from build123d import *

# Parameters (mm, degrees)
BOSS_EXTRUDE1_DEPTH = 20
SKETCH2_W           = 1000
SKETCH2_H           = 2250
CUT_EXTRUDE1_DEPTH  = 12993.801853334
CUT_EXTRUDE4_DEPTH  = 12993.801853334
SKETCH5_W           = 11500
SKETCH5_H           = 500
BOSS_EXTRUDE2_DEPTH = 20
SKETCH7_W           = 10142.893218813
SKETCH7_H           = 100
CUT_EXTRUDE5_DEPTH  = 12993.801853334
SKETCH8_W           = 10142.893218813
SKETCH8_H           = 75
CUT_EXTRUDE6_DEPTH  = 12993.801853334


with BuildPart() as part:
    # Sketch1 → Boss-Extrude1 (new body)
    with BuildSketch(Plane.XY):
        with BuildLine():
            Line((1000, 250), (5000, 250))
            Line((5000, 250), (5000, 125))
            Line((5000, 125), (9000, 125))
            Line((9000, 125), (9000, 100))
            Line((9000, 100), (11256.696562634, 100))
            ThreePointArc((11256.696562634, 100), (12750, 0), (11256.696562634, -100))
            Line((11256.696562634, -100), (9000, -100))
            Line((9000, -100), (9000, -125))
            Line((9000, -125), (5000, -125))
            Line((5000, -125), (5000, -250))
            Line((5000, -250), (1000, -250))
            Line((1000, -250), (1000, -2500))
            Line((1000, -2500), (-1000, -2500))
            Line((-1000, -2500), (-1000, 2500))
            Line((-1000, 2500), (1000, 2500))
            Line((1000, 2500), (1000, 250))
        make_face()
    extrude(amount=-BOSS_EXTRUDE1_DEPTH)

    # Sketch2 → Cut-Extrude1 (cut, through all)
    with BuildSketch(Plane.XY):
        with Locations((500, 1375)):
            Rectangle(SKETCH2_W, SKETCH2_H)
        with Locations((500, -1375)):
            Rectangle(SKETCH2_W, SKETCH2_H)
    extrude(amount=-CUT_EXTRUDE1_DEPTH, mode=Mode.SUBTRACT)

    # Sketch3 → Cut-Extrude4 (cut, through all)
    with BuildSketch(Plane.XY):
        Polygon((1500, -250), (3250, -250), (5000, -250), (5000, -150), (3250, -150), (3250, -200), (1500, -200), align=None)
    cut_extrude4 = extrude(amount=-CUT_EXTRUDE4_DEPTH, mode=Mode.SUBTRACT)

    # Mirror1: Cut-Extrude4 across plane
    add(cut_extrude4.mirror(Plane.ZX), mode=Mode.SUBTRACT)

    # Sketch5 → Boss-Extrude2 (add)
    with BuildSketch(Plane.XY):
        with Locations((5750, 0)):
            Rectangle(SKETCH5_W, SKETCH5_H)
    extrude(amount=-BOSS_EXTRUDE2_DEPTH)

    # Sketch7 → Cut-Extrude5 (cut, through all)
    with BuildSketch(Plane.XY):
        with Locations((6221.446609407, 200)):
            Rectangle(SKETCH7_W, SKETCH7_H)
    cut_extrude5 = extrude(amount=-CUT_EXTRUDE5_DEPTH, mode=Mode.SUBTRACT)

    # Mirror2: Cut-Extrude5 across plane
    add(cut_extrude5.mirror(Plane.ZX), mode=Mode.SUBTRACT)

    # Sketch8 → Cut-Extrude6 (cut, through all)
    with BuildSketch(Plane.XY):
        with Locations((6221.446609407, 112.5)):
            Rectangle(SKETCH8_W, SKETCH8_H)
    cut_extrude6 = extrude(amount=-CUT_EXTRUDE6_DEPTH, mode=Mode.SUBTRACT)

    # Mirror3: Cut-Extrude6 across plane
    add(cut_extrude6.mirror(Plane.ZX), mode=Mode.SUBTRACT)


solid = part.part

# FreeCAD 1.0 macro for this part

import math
import FreeCAD as App
import Part
import Sketcher
from FreeCAD import Vector
Q = App.Units.Quantity


def add_polygon(sketch, points):
    """Adds a closed chain of lines whose ends are joined by coincident constraints."""
    first, n = sketch.GeometryCount, len(points)
    for a, b in zip(points, points[1:] + points[:1]):
        sketch.addGeometry(Part.LineSegment(App.Vector(*a, 0), App.Vector(*b, 0)), False)
    for i in range(n):
        sketch.addConstraint(Sketcher.Constraint("Coincident", first + i, 2, first + (i + 1) % n, 1))

doc = App.newDocument("Part")
params = doc.addObject("Spreadsheet::Sheet", "Params")
for row, (alias, value) in enumerate([
    ("sketch1_radius", "750 mm"),
    ("sketch1_width", "4000 mm"),
    ("sketch1_width2", "2000 mm"),
    ("sketch1_height", "2250 mm"),
    ("sketch1_height2", "5000 mm"),
    ("pad1_length", "20 mm"),
    ("sketch2_width", "1000 mm"),
    ("sketch2_height", "2250 mm"),
    ("sketch3_width", "3500 mm"),
    ("sketch3_height", "100 mm"),
    ("sketch4_width", "11500 mm"),
    ("sketch4_height", "500 mm"),
    ("pad2_length", "20 mm"),
    ("sketch5_height", "100 mm"),
    ("sketch6_height", "75 mm"),
], start=1):
    params.set(f"A{row}", alias)
    params.set(f"B{row}", "=" + value)
    params.setAlias(f"B{row}", alias)

body = doc.addObject("PartDesign::Body", "Body")

# Sketch on XY plane
sketch1 = body.newObject("Sketcher::SketchObject", "Sketch")
sketch1.AttachmentSupport = (doc.getObject("XY_Plane"), [""])
sketch1.MapMode = "FlatFace"
sketch1.addGeometry(Part.LineSegment(Vector(5000, 250, 0), Vector(1000, 250, 0)), False)
sketch1.addGeometry(Part.LineSegment(Vector(1000, 250, 0), Vector(1000, 2500, 0)), False)
sketch1.addGeometry(Part.LineSegment(Vector(1000, 2500, 0), Vector(-1000, 2500, 0)), False)
sketch1.addGeometry(Part.LineSegment(Vector(-1000, 2500, 0), Vector(-1000, -2500, 0)), False)
sketch1.addGeometry(Part.LineSegment(Vector(-1000, -2500, 0), Vector(1000, -2500, 0)), False)
sketch1.addGeometry(Part.LineSegment(Vector(1000, -2500, 0), Vector(1000, -250, 0)), False)
sketch1.addGeometry(Part.LineSegment(Vector(1000, -250, 0), Vector(5000, -250, 0)), False)
sketch1.addGeometry(Part.LineSegment(Vector(5000, -250, 0), Vector(5000, -125, 0)), False)
sketch1.addGeometry(Part.LineSegment(Vector(5000, -125, 0), Vector(9000, -125, 0)), False)
sketch1.addGeometry(Part.LineSegment(Vector(9000, -125, 0), Vector(9000, -100, 0)), False)
sketch1.addGeometry(Part.LineSegment(Vector(9000, -100, 0), Vector(11256.696563, -100, 0)), False)
sketch1.addGeometry(Part.ArcOfCircle(Part.Circle(Vector(12000, 0, 0), Vector(0, 0, 1), 750), math.radians(-172.337744), math.radians(172.337744)), False)
sketch1.addGeometry(Part.LineSegment(Vector(11256.696563, 100, 0), Vector(9000, 100, 0)), False)
sketch1.addGeometry(Part.LineSegment(Vector(9000, 100, 0), Vector(9000, 125, 0)), False)
sketch1.addGeometry(Part.LineSegment(Vector(9000, 125, 0), Vector(5000, 125, 0)), False)
sketch1.addGeometry(Part.LineSegment(Vector(5000, 125, 0), Vector(5000, 250, 0)), False)
sketch1.addConstraint(Sketcher.Constraint("Coincident", 0, 2, 1, 1))
sketch1.addConstraint(Sketcher.Constraint("Coincident", 1, 2, 2, 1))
sketch1.addConstraint(Sketcher.Constraint("Coincident", 2, 2, 3, 1))
sketch1.addConstraint(Sketcher.Constraint("Coincident", 3, 2, 4, 1))
sketch1.addConstraint(Sketcher.Constraint("Coincident", 4, 2, 5, 1))
sketch1.addConstraint(Sketcher.Constraint("Coincident", 5, 2, 6, 1))
sketch1.addConstraint(Sketcher.Constraint("Coincident", 6, 2, 7, 1))
sketch1.addConstraint(Sketcher.Constraint("Coincident", 7, 2, 8, 1))
sketch1.addConstraint(Sketcher.Constraint("Coincident", 8, 2, 9, 1))
sketch1.addConstraint(Sketcher.Constraint("Coincident", 9, 2, 10, 1))
sketch1.addConstraint(Sketcher.Constraint("Coincident", 10, 2, 11, 1))
sketch1.addConstraint(Sketcher.Constraint("Coincident", 11, 2, 12, 1))
sketch1.addConstraint(Sketcher.Constraint("Coincident", 12, 2, 13, 1))
sketch1.addConstraint(Sketcher.Constraint("Coincident", 13, 2, 14, 1))
sketch1.addConstraint(Sketcher.Constraint("Coincident", 14, 2, 15, 1))
sketch1.addConstraint(Sketcher.Constraint("Coincident", 15, 2, 0, 1))
sketch1.addConstraint(Sketcher.Constraint("Horizontal", 0))
sketch1.addConstraint(Sketcher.Constraint("Vertical", 1))
sketch1.addConstraint(Sketcher.Constraint("Horizontal", 2))
sketch1.addConstraint(Sketcher.Constraint("Vertical", 3))
sketch1.addConstraint(Sketcher.Constraint("Horizontal", 4))
sketch1.addConstraint(Sketcher.Constraint("Vertical", 5))
sketch1.addConstraint(Sketcher.Constraint("Horizontal", 6))
sketch1.addConstraint(Sketcher.Constraint("Vertical", 7))
sketch1.addConstraint(Sketcher.Constraint("Horizontal", 8))
sketch1.addConstraint(Sketcher.Constraint("Vertical", 9))
sketch1.addConstraint(Sketcher.Constraint("Horizontal", 10))
sketch1.addConstraint(Sketcher.Constraint("Horizontal", 12))
sketch1.addConstraint(Sketcher.Constraint("Vertical", 13))
sketch1.addConstraint(Sketcher.Constraint("Horizontal", 14))
sketch1.addConstraint(Sketcher.Constraint("Vertical", 15))
sketch1.addConstraint(Sketcher.Constraint("Symmetric", 1, 2, 3, 2, -1, 1))
sketch1.addConstraint(Sketcher.Constraint("Symmetric", 0, 2, 5, 2, -1))
sketch1.addConstraint(Sketcher.Constraint("Symmetric", 9, 2, 12, 2, -1))
sketch1.addConstraint(Sketcher.Constraint("Symmetric", 7, 2, 14, 2, -1))
sketch1.addConstraint(Sketcher.Constraint("PointOnObject", 11, 3, -1))
sketch1.addConstraint(Sketcher.Constraint("Equal", 6, 8))
sketch1.addConstraint(Sketcher.Constraint("Radius", 11, Q("750 mm")))
sketch1.addConstraint(Sketcher.Constraint("DistanceX", 0, 2, 0, 1, Q("4000 mm")))
sketch1.addConstraint(Sketcher.Constraint("DistanceX", 2, 2, 2, 1, Q("2000 mm")))
sketch1.addConstraint(Sketcher.Constraint("DistanceY", 1, 1, 1, 2, Q("2250 mm")))
sketch1.addConstraint(Sketcher.Constraint("DistanceY", 3, 2, 3, 1, Q("5000 mm")))
sketch1.addConstraint(Sketcher.Constraint("DistanceY", 7, 1, 7, 2, Q("125 mm")))
sketch1.addConstraint(Sketcher.Constraint("DistanceY", 9, 1, 9, 2, Q("25 mm")))
sketch1.addConstraint(Sketcher.Constraint("DistanceX", -1, 1, 11, 3, Q("12000 mm")))
sketch1.setExpression("Constraints[37]", "Params.sketch1_radius")
sketch1.setExpression("Constraints[38]", "Params.sketch1_width")
sketch1.setExpression("Constraints[39]", "Params.sketch1_width2")
sketch1.setExpression("Constraints[40]", "Params.sketch1_height")
sketch1.setExpression("Constraints[41]", "Params.sketch1_height2")
pad1 = body.newObject("PartDesign::Pad", "Pad")
pad1.Profile = sketch1
pad1.setExpression("Length", "Params.pad1_length")
pad1.Reversed = True

# Sketch on XY plane
sketch2 = body.newObject("Sketcher::SketchObject", "Sketch001")
sketch2.AttachmentSupport = (doc.getObject("XY_Plane"), [""])
sketch2.MapMode = "FlatFace"
add_polygon(sketch2, [(0, 2500), (0, 250), (1000, 250), (1000, 2500)])  # lines 0-3
add_polygon(sketch2, [(0, -250), (0, -2500), (1000, -2500), (1000, -250)])  # lines 4-7
sketch2.addConstraint(Sketcher.Constraint("Vertical", 0))
sketch2.addConstraint(Sketcher.Constraint("Horizontal", 1))
sketch2.addConstraint(Sketcher.Constraint("Vertical", 2))
sketch2.addConstraint(Sketcher.Constraint("Horizontal", 3))
sketch2.addConstraint(Sketcher.Constraint("Vertical", 4))
sketch2.addConstraint(Sketcher.Constraint("Horizontal", 5))
sketch2.addConstraint(Sketcher.Constraint("Vertical", 6))
sketch2.addConstraint(Sketcher.Constraint("Horizontal", 7))
sketch2.addConstraint(Sketcher.Constraint("Symmetric", 3, 2, 4, 2, -1, 1))
sketch2.addConstraint(Sketcher.Constraint("Symmetric", 1, 2, 6, 2, -1))
sketch2.addConstraint(Sketcher.Constraint("PointOnObject", 0, 2, -2))
sketch2.addConstraint(Sketcher.Constraint("DistanceX", 1, 1, 1, 2, Q("1000 mm")))
sketch2.addConstraint(Sketcher.Constraint("DistanceY", 0, 2, 0, 1, Q("2250 mm")))
sketch2.addConstraint(Sketcher.Constraint("DistanceY", -1, 1, 0, 2, Q("250 mm")))
sketch2.setExpression("Constraints[19]", "Params.sketch2_width")
sketch2.setExpression("Constraints[20]", "Params.sketch2_height")
pocket1 = body.newObject("PartDesign::Pocket", "Pocket")
pocket1.Profile = sketch2
pocket1.Type = "ThroughAll"

# Sketch on XY plane
sketch3 = body.newObject("Sketcher::SketchObject", "Sketch002")
sketch3.AttachmentSupport = (doc.getObject("XY_Plane"), [""])
sketch3.MapMode = "FlatFace"
add_polygon(sketch3, [(1500, -250), (5000, -250), (5000, -150), (3250, -150), (3250, -200), (1500, -200)])  # lines 0-5
sketch3.addConstraint(Sketcher.Constraint("Horizontal", 0))
sketch3.addConstraint(Sketcher.Constraint("Vertical", 1))
sketch3.addConstraint(Sketcher.Constraint("Horizontal", 2))
sketch3.addConstraint(Sketcher.Constraint("Vertical", 3))
sketch3.addConstraint(Sketcher.Constraint("Horizontal", 4))
sketch3.addConstraint(Sketcher.Constraint("Vertical", 5))
sketch3.addConstraint(Sketcher.Constraint("Equal", 2, 4))
sketch3.addConstraint(Sketcher.Constraint("Equal", 3, 5))
sketch3.addConstraint(Sketcher.Constraint("DistanceX", 0, 1, 0, 2, Q("3500 mm")))
sketch3.addConstraint(Sketcher.Constraint("DistanceY", 1, 1, 1, 2, Q("100 mm")))
sketch3.addConstraint(Sketcher.Constraint("DistanceX", -1, 1, 0, 2, Q("5000 mm")))
sketch3.addConstraint(Sketcher.Constraint("DistanceY", 0, 2, -1, 1, Q("250 mm")))
sketch3.setExpression("Constraints[14]", "Params.sketch3_width")
sketch3.setExpression("Constraints[15]", "Params.sketch3_height")
pocket2 = body.newObject("PartDesign::Pocket", "Pocket001")
pocket2.Profile = sketch3
pocket2.Type = "ThroughAll"
doc.recompute()

mirrored = body.newObject("PartDesign::Mirrored", "Mirrored")
mirrored.Originals = [pocket2]
mirrored.MirrorPlane = (doc.getObject("XZ_Plane"), [""])
body.Tip = mirrored

# Sketch on XY plane
sketch4 = body.newObject("Sketcher::SketchObject", "Sketch003")
sketch4.AttachmentSupport = (doc.getObject("XY_Plane"), [""])
sketch4.MapMode = "FlatFace"
add_polygon(sketch4, [(0, 250), (0, -250), (11500, -250), (11500, 250)])  # lines 0-3
sketch4.addConstraint(Sketcher.Constraint("Vertical", 0))
sketch4.addConstraint(Sketcher.Constraint("Horizontal", 1))
sketch4.addConstraint(Sketcher.Constraint("Vertical", 2))
sketch4.addConstraint(Sketcher.Constraint("Horizontal", 3))
sketch4.addConstraint(Sketcher.Constraint("Symmetric", 0, 2, 3, 2, -1, 1))
sketch4.addConstraint(Sketcher.Constraint("DistanceX", 1, 1, 1, 2, Q("11500 mm")))
sketch4.addConstraint(Sketcher.Constraint("DistanceY", 0, 2, 0, 1, Q("500 mm")))
sketch4.setExpression("Constraints[9]", "Params.sketch4_width")
sketch4.setExpression("Constraints[10]", "Params.sketch4_height")
pad2 = body.newObject("PartDesign::Pad", "Pad001")
pad2.Profile = sketch4
pad2.setExpression("Length", "Params.pad2_length")
pad2.Reversed = True

# Sketch on XY plane
sketch5 = body.newObject("Sketcher::SketchObject", "Sketch004")
sketch5.AttachmentSupport = (doc.getObject("XY_Plane"), [""])
sketch5.MapMode = "FlatFace"
add_polygon(sketch5, [(1150, 250), (1150, 150), (11292.893219, 150), (11292.893219, 250)])  # lines 0-3
sketch5.addConstraint(Sketcher.Constraint("Vertical", 0))
sketch5.addConstraint(Sketcher.Constraint("Horizontal", 1))
sketch5.addConstraint(Sketcher.Constraint("Vertical", 2))
sketch5.addConstraint(Sketcher.Constraint("Horizontal", 3))
sketch5.addConstraint(Sketcher.Constraint("DistanceY", 0, 2, 0, 1, Q("100 mm")))
sketch5.addConstraint(Sketcher.Constraint("DistanceX", -1, 1, 0, 2, Q("1150 mm")))
sketch5.addConstraint(Sketcher.Constraint("DistanceY", -1, 1, 0, 2, Q("150 mm")))
sketch5.addConstraint(Sketcher.Constraint("DistanceX", 1, 1, 1, 2, Q("10142.893219 mm")))
sketch5.setExpression("Constraints[8]", "Params.sketch5_height")
pocket3 = body.newObject("PartDesign::Pocket", "Pocket002")
pocket3.Profile = sketch5
pocket3.Type = "ThroughAll"
doc.recompute()

mirrored2 = body.newObject("PartDesign::Mirrored", "Mirrored001")
mirrored2.Originals = [pocket3]
mirrored2.MirrorPlane = (doc.getObject("XZ_Plane"), [""])
body.Tip = mirrored2

# Sketch on XY plane
sketch6 = body.newObject("Sketcher::SketchObject", "Sketch005")
sketch6.AttachmentSupport = (doc.getObject("XY_Plane"), [""])
sketch6.MapMode = "FlatFace"
add_polygon(sketch6, [(1150, 150), (1150, 75), (11292.893219, 75), (11292.893219, 150)])  # lines 0-3
sketch6.addConstraint(Sketcher.Constraint("Vertical", 0))
sketch6.addConstraint(Sketcher.Constraint("Horizontal", 1))
sketch6.addConstraint(Sketcher.Constraint("Vertical", 2))
sketch6.addConstraint(Sketcher.Constraint("Horizontal", 3))
sketch6.addConstraint(Sketcher.Constraint("DistanceY", 0, 2, 0, 1, Q("75 mm")))
sketch6.addConstraint(Sketcher.Constraint("DistanceX", -1, 1, 0, 2, Q("1150 mm")))
sketch6.addConstraint(Sketcher.Constraint("DistanceY", -1, 1, 0, 2, Q("75 mm")))
sketch6.addConstraint(Sketcher.Constraint("DistanceX", 1, 1, 1, 2, Q("10142.893219 mm")))
sketch6.setExpression("Constraints[8]", "Params.sketch6_height")
pocket4 = body.newObject("PartDesign::Pocket", "Pocket003")
pocket4.Profile = sketch6
pocket4.Type = "ThroughAll"
doc.recompute()

mirrored3 = body.newObject("PartDesign::Mirrored", "Mirrored002")
mirrored3.Originals = [pocket4]
mirrored3.MirrorPlane = (doc.getObject("XZ_Plane"), [""])
body.Tip = mirrored3

doc.recompute()
